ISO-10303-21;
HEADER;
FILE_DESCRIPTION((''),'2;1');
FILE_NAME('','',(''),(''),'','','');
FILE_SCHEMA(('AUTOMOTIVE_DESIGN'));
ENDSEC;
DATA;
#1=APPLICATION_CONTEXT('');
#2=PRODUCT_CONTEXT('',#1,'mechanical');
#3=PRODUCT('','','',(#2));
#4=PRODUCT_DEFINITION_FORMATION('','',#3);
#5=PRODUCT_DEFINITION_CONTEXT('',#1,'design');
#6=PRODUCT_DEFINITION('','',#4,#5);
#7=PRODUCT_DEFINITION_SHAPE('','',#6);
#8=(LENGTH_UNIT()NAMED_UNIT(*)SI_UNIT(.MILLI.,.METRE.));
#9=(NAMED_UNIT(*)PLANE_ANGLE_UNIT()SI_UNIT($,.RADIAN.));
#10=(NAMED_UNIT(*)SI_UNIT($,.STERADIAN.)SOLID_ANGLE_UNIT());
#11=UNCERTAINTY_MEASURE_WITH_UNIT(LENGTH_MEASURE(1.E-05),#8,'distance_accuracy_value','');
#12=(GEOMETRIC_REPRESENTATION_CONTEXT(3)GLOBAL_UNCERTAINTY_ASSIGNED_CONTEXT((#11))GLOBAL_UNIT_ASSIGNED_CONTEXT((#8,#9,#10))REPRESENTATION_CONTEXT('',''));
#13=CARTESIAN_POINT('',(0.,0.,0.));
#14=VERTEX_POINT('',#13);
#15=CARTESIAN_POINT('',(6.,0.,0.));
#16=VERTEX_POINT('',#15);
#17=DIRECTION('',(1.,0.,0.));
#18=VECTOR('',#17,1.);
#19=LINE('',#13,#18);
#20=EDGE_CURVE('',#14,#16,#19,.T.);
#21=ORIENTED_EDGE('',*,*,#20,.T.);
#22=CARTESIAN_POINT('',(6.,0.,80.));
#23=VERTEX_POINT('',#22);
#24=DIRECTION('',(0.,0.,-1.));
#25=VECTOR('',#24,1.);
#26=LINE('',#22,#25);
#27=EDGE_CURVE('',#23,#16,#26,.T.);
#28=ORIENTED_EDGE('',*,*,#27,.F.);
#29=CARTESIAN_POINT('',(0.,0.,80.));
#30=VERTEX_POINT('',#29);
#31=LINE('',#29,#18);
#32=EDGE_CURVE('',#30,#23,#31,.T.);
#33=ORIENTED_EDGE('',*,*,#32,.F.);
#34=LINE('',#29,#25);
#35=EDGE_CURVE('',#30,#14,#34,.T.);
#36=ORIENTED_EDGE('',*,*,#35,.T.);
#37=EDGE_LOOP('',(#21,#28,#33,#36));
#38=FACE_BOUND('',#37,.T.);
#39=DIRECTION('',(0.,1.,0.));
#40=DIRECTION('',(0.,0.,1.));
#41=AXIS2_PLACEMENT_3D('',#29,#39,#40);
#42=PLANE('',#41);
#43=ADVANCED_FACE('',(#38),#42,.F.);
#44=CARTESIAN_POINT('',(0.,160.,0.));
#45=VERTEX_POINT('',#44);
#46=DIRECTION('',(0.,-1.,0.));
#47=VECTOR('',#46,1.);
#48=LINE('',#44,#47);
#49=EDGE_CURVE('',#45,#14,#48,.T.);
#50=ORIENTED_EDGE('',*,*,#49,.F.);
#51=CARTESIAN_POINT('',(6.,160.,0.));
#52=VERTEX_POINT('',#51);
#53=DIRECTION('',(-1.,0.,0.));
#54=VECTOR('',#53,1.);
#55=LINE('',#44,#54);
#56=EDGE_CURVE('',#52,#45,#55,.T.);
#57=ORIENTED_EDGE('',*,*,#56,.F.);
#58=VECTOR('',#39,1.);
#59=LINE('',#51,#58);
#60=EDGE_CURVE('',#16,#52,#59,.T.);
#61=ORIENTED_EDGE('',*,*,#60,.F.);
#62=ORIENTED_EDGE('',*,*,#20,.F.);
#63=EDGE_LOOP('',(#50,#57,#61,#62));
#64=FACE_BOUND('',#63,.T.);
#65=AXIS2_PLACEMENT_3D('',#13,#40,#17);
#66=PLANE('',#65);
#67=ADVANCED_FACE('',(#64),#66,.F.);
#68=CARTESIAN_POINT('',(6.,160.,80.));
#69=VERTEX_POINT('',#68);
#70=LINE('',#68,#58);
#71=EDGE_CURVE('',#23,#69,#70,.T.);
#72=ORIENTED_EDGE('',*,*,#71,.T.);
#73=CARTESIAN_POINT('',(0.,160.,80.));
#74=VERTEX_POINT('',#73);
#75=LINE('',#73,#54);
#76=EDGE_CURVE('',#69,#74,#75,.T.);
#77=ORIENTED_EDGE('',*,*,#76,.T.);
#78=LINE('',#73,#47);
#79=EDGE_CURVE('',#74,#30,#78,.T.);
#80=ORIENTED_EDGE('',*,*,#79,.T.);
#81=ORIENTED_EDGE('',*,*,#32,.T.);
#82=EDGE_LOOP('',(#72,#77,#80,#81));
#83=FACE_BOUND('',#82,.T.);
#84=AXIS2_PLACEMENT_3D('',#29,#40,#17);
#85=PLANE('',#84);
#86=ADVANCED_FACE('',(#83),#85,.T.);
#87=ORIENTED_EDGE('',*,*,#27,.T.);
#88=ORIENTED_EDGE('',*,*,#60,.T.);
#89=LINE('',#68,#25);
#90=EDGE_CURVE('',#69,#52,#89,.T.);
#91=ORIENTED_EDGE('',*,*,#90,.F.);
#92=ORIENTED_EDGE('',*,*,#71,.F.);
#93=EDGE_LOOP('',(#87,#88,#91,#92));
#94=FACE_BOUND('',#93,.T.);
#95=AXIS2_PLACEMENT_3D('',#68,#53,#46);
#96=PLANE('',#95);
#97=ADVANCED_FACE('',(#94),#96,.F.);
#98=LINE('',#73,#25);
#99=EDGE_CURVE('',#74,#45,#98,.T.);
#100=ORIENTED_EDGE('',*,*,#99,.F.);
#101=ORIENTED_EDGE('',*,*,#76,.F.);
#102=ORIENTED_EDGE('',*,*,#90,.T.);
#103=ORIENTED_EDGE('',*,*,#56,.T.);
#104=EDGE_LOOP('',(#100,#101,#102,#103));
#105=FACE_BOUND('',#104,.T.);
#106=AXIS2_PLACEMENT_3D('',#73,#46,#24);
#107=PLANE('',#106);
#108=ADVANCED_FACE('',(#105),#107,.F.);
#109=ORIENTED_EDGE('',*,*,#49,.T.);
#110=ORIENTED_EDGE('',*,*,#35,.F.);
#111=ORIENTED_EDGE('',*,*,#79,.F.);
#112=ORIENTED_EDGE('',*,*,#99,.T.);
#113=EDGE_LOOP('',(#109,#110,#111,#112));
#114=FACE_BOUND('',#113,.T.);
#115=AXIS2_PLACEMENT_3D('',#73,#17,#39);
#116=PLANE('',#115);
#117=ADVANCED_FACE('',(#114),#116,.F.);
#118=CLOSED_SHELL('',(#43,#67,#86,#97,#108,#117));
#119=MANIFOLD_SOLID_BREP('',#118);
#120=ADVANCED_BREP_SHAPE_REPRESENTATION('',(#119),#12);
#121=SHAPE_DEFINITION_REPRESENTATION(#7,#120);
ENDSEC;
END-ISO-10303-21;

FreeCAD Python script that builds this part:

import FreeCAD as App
import Part
import Sketcher
from FreeCAD import Vector
Q = App.Units.Quantity

doc = App.newDocument("Part")
params = doc.addObject("Spreadsheet::Sheet", "Params")
for row, (alias, value) in enumerate([
    ("sketch1_width", "6 mm"),
    ("sketch1_height", "160 mm"),
    ("pad1_length", "80 mm"),
], start=1):
    params.set(f"A{row}", alias)
    params.set(f"B{row}", "=" + value)
    params.setAlias(f"B{row}", alias)

body = doc.addObject("PartDesign::Body", "Body")

sketch1 = body.newObject("Sketcher::SketchObject", "Sketch")
sketch1.AttachmentSupport = (doc.getObject("XY_Plane"), [""])
sketch1.MapMode = "FlatFace"
sketch1.addGeometry([
    Part.LineSegment(Vector(0, 160, 0), Vector(0, 0, 0)),
    Part.LineSegment(Vector(0, 0, 0), Vector(6, 0, 0)),
    Part.LineSegment(Vector(6, 0, 0), Vector(6, 160, 0)),
    Part.LineSegment(Vector(6, 160, 0), Vector(0, 160, 0)),
], False)
sketch1.addConstraint([
    Sketcher.Constraint("Coincident", 0, 2, 1, 1),
    Sketcher.Constraint("Coincident", 1, 2, 2, 1),
    Sketcher.Constraint("Coincident", 2, 2, 3, 1),
    Sketcher.Constraint("Coincident", 3, 2, 0, 1),
    Sketcher.Constraint("Vertical", 0),
    Sketcher.Constraint("Horizontal", 1),
    Sketcher.Constraint("Vertical", 2),
    Sketcher.Constraint("Horizontal", 3),
    Sketcher.Constraint("Coincident", 0, 2, -1, 1),
    Sketcher.Constraint("DistanceX", 1, 1, 1, 2, Q("6 mm")),
    Sketcher.Constraint("DistanceY", 0, 2, 0, 1, Q("160 mm")),
])
sketch1.setExpression("Constraints[9]", "Params.sketch1_width")
sketch1.setExpression("Constraints[10]", "Params.sketch1_height")
pad1 = body.newObject("PartDesign::Pad", "Pad")
pad1.Profile = sketch1
pad1.setExpression("Length", "Params.pad1_length")

doc.recompute()
